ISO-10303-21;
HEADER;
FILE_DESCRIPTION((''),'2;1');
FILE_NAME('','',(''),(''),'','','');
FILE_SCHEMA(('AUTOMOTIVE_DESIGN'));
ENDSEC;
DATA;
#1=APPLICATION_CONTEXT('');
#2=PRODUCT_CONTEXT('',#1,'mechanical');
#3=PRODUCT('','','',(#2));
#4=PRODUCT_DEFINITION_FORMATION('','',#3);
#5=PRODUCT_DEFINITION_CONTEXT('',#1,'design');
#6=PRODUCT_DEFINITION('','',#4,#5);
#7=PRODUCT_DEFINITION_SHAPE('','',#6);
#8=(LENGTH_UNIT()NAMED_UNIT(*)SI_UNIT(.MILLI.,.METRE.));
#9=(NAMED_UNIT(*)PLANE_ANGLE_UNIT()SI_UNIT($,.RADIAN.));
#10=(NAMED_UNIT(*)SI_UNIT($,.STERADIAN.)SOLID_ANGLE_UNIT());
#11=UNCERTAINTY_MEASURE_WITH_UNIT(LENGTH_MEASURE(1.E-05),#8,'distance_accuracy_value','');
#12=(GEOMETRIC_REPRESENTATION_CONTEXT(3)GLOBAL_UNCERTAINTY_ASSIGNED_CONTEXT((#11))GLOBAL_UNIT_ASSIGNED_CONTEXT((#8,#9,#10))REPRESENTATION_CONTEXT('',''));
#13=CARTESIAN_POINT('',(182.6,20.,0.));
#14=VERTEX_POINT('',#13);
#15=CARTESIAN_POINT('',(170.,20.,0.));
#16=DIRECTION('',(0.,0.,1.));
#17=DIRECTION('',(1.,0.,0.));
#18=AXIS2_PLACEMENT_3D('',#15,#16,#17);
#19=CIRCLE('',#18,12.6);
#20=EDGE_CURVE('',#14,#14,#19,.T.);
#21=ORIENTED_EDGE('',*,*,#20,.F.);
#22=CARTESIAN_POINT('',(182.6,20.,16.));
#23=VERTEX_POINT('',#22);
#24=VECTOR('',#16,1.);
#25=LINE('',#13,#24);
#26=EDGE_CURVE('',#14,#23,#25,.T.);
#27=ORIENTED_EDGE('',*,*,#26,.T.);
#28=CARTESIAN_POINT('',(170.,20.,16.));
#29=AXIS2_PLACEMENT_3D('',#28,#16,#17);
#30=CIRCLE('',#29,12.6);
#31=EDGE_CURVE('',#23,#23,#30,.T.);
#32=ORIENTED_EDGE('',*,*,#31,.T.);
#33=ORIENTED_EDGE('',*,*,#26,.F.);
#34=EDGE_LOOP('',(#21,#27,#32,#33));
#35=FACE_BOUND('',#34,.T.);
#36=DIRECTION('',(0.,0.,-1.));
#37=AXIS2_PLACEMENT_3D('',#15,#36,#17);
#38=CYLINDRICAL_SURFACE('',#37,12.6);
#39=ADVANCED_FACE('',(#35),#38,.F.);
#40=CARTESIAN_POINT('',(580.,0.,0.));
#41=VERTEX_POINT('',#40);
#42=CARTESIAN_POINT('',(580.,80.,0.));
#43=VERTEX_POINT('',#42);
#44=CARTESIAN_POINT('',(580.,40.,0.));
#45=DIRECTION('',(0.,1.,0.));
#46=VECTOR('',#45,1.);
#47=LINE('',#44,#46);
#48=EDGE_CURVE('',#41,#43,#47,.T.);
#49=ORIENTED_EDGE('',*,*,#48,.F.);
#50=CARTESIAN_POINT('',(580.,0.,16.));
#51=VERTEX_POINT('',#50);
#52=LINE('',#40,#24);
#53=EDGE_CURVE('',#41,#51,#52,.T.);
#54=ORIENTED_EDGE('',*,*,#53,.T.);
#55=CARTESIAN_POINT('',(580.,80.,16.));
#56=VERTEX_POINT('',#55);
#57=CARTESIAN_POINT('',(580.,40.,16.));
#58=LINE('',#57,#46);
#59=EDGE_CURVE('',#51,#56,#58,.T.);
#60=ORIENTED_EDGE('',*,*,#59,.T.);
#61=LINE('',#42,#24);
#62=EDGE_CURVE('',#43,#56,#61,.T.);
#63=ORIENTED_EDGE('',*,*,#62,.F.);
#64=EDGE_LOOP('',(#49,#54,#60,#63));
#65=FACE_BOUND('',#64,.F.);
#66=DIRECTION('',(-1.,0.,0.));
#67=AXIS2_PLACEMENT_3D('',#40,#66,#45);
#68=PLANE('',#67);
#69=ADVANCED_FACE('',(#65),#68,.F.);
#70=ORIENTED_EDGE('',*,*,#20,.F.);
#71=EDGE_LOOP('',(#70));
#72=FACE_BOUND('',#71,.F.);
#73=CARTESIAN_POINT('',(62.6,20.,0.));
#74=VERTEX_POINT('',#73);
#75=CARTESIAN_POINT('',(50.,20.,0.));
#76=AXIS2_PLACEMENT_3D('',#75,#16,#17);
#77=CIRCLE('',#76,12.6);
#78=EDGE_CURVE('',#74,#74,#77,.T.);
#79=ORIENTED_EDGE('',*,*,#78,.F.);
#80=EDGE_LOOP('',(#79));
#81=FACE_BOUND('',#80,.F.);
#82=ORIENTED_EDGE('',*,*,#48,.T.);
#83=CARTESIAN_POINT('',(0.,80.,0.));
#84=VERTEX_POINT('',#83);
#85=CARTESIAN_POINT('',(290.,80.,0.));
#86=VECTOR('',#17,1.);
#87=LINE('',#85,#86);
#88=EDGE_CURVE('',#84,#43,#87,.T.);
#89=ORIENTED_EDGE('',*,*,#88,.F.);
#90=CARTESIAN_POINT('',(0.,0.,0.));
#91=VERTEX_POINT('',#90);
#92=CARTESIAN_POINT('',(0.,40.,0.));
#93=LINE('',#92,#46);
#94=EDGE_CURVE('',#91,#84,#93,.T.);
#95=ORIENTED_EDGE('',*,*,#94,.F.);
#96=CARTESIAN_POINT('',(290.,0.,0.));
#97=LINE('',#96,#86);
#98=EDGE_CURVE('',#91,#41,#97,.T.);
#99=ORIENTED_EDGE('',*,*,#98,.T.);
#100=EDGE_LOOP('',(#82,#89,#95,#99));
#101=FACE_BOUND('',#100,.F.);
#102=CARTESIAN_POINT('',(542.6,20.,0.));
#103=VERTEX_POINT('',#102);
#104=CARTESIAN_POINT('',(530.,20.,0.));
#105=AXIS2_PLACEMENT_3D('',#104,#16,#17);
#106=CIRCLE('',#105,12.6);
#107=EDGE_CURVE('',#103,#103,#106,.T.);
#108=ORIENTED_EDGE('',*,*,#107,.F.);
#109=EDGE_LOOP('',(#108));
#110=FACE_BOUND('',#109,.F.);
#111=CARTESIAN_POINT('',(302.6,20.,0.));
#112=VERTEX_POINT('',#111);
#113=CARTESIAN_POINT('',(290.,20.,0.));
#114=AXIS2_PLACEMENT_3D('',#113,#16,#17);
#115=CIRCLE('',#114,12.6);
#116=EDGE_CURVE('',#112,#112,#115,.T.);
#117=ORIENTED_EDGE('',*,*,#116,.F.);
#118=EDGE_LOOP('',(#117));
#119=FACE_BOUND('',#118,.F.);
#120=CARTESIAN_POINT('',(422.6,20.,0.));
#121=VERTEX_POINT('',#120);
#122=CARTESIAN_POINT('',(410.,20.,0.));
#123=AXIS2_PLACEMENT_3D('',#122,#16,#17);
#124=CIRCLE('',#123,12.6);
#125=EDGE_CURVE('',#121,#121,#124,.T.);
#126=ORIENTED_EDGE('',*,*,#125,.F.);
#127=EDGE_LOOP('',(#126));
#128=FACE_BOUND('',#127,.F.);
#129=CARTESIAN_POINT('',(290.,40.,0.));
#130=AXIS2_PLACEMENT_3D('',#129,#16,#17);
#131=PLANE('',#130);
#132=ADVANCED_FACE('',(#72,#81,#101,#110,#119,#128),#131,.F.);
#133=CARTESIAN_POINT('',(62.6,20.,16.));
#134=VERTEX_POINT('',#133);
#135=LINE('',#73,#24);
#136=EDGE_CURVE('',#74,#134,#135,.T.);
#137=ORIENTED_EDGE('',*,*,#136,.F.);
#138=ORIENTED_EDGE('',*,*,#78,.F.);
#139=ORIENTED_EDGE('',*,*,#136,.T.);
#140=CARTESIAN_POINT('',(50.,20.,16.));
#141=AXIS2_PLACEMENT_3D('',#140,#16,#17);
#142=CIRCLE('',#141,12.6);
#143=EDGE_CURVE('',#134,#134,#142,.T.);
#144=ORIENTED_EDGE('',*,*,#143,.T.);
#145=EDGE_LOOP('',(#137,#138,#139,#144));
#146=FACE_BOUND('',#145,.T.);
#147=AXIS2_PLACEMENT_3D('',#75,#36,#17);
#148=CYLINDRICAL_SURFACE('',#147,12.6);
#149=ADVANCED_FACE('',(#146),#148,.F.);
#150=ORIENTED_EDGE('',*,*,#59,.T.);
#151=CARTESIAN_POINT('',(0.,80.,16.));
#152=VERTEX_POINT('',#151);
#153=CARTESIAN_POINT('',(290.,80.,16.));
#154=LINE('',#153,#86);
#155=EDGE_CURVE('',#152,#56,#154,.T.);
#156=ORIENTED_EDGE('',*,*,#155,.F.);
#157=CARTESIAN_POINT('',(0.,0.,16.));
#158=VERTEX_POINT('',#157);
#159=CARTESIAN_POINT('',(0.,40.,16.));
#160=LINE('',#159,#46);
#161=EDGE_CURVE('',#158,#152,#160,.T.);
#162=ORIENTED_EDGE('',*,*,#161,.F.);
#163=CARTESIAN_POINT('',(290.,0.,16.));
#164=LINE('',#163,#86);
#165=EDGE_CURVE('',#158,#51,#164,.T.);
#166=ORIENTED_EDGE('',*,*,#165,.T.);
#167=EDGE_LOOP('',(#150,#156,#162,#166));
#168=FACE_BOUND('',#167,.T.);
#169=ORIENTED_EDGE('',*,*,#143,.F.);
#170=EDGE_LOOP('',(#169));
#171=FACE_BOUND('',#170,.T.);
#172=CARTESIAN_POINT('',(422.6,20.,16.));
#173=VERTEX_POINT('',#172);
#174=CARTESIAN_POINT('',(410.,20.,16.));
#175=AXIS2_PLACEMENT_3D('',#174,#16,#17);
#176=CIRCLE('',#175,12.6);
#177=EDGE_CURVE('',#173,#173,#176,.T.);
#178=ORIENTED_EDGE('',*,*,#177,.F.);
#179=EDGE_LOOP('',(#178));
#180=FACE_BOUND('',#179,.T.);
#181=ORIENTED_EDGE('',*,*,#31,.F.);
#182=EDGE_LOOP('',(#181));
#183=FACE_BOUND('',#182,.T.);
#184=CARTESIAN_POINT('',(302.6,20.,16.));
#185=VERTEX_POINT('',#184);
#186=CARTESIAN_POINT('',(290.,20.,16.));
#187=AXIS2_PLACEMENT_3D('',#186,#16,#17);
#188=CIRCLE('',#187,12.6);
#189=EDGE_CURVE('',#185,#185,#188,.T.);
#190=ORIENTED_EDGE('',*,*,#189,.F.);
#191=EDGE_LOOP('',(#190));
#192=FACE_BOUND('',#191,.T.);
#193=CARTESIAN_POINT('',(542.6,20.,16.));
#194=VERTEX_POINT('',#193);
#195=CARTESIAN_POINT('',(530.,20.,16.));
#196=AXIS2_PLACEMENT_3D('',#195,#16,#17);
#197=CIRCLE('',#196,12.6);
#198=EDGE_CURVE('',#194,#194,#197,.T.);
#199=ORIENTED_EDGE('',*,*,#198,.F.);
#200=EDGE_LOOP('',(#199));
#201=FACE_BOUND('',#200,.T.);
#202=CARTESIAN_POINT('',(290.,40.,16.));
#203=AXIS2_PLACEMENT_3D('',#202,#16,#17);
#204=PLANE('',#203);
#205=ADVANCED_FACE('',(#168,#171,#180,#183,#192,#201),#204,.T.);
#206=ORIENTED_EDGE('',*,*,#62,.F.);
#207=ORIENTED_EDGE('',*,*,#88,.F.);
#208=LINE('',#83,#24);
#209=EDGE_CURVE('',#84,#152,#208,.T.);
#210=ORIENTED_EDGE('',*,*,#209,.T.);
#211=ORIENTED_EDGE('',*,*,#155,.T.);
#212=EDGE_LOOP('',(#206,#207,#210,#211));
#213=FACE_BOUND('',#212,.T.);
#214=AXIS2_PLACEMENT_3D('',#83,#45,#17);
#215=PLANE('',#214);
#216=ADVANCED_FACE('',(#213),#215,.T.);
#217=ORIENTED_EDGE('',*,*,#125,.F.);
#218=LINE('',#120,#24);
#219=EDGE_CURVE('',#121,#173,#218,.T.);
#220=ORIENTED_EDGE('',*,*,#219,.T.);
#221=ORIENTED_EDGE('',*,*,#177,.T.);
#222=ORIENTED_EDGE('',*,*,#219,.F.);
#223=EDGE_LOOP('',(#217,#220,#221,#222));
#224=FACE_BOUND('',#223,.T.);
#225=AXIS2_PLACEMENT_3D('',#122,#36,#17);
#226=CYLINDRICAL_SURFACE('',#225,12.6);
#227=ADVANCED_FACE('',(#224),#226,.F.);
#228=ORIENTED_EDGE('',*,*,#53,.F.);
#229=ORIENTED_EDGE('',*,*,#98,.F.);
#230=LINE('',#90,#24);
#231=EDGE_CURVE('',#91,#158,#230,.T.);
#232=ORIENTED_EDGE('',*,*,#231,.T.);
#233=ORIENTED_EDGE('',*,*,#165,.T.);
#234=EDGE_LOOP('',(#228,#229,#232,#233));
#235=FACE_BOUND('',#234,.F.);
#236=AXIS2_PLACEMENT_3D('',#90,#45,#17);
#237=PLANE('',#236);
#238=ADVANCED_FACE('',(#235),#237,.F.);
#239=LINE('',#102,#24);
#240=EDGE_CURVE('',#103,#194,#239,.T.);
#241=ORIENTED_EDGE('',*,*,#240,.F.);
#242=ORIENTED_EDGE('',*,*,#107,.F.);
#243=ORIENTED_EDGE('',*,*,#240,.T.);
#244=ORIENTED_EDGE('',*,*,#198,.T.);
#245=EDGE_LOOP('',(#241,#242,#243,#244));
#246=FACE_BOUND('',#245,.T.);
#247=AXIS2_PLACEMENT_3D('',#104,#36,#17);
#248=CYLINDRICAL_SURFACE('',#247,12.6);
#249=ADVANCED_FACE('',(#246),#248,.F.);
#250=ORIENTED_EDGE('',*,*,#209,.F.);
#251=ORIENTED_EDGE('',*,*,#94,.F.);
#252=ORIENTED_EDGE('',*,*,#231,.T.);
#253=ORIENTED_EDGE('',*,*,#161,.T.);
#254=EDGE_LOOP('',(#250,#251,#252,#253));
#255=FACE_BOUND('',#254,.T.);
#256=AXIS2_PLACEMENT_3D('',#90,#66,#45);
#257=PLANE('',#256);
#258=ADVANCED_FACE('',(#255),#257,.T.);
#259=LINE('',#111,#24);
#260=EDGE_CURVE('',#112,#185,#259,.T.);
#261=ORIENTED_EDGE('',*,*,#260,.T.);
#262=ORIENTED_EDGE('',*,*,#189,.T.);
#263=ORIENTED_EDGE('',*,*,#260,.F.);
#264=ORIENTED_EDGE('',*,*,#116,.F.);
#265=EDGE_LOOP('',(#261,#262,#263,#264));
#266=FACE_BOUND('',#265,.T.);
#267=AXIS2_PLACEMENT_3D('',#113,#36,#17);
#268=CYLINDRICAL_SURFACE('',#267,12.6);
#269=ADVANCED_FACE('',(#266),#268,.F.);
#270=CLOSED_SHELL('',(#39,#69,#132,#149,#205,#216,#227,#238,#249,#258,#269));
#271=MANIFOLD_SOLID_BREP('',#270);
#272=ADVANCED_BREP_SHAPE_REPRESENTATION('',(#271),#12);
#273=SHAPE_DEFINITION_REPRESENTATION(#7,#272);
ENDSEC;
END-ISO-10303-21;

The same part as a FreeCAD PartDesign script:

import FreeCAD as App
import Part
import Sketcher
from FreeCAD import Vector

doc = App.newDocument("Part")
body = doc.addObject("PartDesign::Body", "Body")

# Sketch on XY plane
sketch1 = body.newObject("Sketcher::SketchObject", "Sketch")
sketch1.AttachmentSupport = (doc.getObject("XY_Plane"), [""])
sketch1.MapMode = "FlatFace"
sketch1.addGeometry([
    Part.LineSegment(Vector(0, 80, 0), Vector(0, 0, 0)),
    Part.LineSegment(Vector(0, 0, 0), Vector(580, 0, 0)),
    Part.LineSegment(Vector(580, 0, 0), Vector(580, 80, 0)),
    Part.LineSegment(Vector(580, 80, 0), Vector(0, 80, 0)),
], False)
sketch1.addConstraint([
    Sketcher.Constraint("Coincident", 0, 2, 1, 1),
    Sketcher.Constraint("Coincident", 1, 2, 2, 1),
    Sketcher.Constraint("Coincident", 2, 2, 3, 1),
    Sketcher.Constraint("Coincident", 3, 2, 0, 1),
    Sketcher.Constraint("Vertical", 0),
    Sketcher.Constraint("Horizontal", 1),
    Sketcher.Constraint("Vertical", 2),
    Sketcher.Constraint("Horizontal", 3),
    Sketcher.Constraint("Coincident", 0, 2, -1, 1),
    Sketcher.Constraint("DistanceX", 1, 1, 1, 2, 580.0),
    Sketcher.Constraint("DistanceY", 0, 2, 0, 1, 80.0),
])
pad1 = body.newObject("PartDesign::Pad", "Pad")
pad1.Profile = sketch1
pad1.Length = 16

# Sketch on XY plane
sketch2 = body.newObject("Sketcher::SketchObject", "Sketch001")
sketch2.AttachmentSupport = (doc.getObject("XY_Plane"), [""])
sketch2.MapMode = "FlatFace"
sketch2.addGeometry([
    Part.Circle(Vector(50, 20, 0), Vector(0, 0, 1), 13),  # 0
    Part.Circle(Vector(170, 20, 0), Vector(0, 0, 1), 13),  # 1
    Part.Circle(Vector(290, 20, 0), Vector(0, 0, 1), 13),  # 2
    Part.Circle(Vector(410, 20, 0), Vector(0, 0, 1), 13),  # 3
    Part.Circle(Vector(530, 20, 0), Vector(0, 0, 1), 13),  # 4
], False)
sketch2.addConstraint([
    Sketcher.Constraint("Equal", 0, 1),
    Sketcher.Constraint("Equal", 1, 2),
    Sketcher.Constraint("Equal", 2, 3),
    Sketcher.Constraint("Equal", 3, 4),
    Sketcher.Constraint("Horizontal", 0, 3, 1, 3),
    Sketcher.Constraint("Horizontal", 1, 3, 2, 3),
    Sketcher.Constraint("Horizontal", 2, 3, 3, 3),
    Sketcher.Constraint("Horizontal", 3, 3, 4, 3),
    Sketcher.Constraint("Diameter", 0, 25.2),
    Sketcher.Constraint("DistanceX", -1, 1, 0, 3, 50.0),
    Sketcher.Constraint("DistanceY", -1, 1, 0, 3, 20.0),
    Sketcher.Constraint("DistanceX", -1, 1, 1, 3, 170.0),
    Sketcher.Constraint("DistanceX", -1, 1, 2, 3, 290.0),
    Sketcher.Constraint("DistanceX", -1, 1, 3, 3, 410.0),
    Sketcher.Constraint("DistanceX", -1, 1, 4, 3, 530.0),
])
pocket1 = body.newObject("PartDesign::Pocket", "Pocket")
pocket1.Profile = sketch2
pocket1.Length = 16
pocket1.Reversed = True

doc.recompute()
